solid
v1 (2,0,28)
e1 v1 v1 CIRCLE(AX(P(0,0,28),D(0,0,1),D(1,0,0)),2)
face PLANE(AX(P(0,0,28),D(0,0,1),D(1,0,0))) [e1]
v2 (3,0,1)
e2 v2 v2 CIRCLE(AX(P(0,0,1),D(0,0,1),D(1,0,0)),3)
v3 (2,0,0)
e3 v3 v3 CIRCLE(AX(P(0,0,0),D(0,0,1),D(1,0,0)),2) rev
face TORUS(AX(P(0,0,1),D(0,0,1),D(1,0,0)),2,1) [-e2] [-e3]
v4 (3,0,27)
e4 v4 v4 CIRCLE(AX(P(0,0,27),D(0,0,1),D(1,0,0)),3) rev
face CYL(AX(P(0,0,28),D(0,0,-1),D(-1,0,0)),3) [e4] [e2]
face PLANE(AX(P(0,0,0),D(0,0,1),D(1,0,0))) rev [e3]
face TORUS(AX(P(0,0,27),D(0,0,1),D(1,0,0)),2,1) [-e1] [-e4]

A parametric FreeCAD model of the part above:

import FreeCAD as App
import Part
import Sketcher
from FreeCAD import Vector


def edges_at(feature, points):
    """Names of the edges that pass closest to the given points."""
    edges = feature.Shape.Edges
    near = lambda p: min(range(len(edges)), key=lambda i: edges[i].distToShape(Part.Vertex(*p))[0])
    return sorted({f"Edge{near(p) + 1}" for p in points})

doc = App.newDocument("Part")
params = doc.addObject("Spreadsheet::Sheet", "Params")
for row, (alias, value) in enumerate([
    ("sketch1_diameter", "6 mm"),
    ("pad1_length", "28 mm"),
    ("fillet_radius", "1 mm"),
], start=1):
    params.set(f"A{row}", alias)
    params.set(f"B{row}", "=" + value)
    params.setAlias(f"B{row}", alias)

body = doc.addObject("PartDesign::Body", "Body")

# Sketch on XY plane
sketch1 = body.newObject("Sketcher::SketchObject", "Sketch")
sketch1.AttachmentSupport = (doc.getObject("XY_Plane"), [""])
sketch1.MapMode = "FlatFace"
sketch1.addGeometry(Part.Circle(Vector(0, 0, 0), Vector(0, 0, 1), 3), False)
sketch1.addConstraint([
    Sketcher.Constraint("Coincident", 0, 3, -1, 1),
    Sketcher.Constraint("Diameter", 0, 6.0),
])
sketch1.setExpression("Constraints[1]", "Params.sketch1_diameter")
pad1 = body.newObject("PartDesign::Pad", "Pad")
pad1.Profile = sketch1
pad1.setExpression("Length", "Params.pad1_length")
doc.recompute()

fillet = body.newObject("PartDesign::Fillet", "Fillet")
fillet.Base = (pad1, edges_at(pad1, [(-3, 0, 0), (-3, 0, 28)]))
fillet.setExpression("Radius", "Params.fillet_radius")

doc.recompute()
